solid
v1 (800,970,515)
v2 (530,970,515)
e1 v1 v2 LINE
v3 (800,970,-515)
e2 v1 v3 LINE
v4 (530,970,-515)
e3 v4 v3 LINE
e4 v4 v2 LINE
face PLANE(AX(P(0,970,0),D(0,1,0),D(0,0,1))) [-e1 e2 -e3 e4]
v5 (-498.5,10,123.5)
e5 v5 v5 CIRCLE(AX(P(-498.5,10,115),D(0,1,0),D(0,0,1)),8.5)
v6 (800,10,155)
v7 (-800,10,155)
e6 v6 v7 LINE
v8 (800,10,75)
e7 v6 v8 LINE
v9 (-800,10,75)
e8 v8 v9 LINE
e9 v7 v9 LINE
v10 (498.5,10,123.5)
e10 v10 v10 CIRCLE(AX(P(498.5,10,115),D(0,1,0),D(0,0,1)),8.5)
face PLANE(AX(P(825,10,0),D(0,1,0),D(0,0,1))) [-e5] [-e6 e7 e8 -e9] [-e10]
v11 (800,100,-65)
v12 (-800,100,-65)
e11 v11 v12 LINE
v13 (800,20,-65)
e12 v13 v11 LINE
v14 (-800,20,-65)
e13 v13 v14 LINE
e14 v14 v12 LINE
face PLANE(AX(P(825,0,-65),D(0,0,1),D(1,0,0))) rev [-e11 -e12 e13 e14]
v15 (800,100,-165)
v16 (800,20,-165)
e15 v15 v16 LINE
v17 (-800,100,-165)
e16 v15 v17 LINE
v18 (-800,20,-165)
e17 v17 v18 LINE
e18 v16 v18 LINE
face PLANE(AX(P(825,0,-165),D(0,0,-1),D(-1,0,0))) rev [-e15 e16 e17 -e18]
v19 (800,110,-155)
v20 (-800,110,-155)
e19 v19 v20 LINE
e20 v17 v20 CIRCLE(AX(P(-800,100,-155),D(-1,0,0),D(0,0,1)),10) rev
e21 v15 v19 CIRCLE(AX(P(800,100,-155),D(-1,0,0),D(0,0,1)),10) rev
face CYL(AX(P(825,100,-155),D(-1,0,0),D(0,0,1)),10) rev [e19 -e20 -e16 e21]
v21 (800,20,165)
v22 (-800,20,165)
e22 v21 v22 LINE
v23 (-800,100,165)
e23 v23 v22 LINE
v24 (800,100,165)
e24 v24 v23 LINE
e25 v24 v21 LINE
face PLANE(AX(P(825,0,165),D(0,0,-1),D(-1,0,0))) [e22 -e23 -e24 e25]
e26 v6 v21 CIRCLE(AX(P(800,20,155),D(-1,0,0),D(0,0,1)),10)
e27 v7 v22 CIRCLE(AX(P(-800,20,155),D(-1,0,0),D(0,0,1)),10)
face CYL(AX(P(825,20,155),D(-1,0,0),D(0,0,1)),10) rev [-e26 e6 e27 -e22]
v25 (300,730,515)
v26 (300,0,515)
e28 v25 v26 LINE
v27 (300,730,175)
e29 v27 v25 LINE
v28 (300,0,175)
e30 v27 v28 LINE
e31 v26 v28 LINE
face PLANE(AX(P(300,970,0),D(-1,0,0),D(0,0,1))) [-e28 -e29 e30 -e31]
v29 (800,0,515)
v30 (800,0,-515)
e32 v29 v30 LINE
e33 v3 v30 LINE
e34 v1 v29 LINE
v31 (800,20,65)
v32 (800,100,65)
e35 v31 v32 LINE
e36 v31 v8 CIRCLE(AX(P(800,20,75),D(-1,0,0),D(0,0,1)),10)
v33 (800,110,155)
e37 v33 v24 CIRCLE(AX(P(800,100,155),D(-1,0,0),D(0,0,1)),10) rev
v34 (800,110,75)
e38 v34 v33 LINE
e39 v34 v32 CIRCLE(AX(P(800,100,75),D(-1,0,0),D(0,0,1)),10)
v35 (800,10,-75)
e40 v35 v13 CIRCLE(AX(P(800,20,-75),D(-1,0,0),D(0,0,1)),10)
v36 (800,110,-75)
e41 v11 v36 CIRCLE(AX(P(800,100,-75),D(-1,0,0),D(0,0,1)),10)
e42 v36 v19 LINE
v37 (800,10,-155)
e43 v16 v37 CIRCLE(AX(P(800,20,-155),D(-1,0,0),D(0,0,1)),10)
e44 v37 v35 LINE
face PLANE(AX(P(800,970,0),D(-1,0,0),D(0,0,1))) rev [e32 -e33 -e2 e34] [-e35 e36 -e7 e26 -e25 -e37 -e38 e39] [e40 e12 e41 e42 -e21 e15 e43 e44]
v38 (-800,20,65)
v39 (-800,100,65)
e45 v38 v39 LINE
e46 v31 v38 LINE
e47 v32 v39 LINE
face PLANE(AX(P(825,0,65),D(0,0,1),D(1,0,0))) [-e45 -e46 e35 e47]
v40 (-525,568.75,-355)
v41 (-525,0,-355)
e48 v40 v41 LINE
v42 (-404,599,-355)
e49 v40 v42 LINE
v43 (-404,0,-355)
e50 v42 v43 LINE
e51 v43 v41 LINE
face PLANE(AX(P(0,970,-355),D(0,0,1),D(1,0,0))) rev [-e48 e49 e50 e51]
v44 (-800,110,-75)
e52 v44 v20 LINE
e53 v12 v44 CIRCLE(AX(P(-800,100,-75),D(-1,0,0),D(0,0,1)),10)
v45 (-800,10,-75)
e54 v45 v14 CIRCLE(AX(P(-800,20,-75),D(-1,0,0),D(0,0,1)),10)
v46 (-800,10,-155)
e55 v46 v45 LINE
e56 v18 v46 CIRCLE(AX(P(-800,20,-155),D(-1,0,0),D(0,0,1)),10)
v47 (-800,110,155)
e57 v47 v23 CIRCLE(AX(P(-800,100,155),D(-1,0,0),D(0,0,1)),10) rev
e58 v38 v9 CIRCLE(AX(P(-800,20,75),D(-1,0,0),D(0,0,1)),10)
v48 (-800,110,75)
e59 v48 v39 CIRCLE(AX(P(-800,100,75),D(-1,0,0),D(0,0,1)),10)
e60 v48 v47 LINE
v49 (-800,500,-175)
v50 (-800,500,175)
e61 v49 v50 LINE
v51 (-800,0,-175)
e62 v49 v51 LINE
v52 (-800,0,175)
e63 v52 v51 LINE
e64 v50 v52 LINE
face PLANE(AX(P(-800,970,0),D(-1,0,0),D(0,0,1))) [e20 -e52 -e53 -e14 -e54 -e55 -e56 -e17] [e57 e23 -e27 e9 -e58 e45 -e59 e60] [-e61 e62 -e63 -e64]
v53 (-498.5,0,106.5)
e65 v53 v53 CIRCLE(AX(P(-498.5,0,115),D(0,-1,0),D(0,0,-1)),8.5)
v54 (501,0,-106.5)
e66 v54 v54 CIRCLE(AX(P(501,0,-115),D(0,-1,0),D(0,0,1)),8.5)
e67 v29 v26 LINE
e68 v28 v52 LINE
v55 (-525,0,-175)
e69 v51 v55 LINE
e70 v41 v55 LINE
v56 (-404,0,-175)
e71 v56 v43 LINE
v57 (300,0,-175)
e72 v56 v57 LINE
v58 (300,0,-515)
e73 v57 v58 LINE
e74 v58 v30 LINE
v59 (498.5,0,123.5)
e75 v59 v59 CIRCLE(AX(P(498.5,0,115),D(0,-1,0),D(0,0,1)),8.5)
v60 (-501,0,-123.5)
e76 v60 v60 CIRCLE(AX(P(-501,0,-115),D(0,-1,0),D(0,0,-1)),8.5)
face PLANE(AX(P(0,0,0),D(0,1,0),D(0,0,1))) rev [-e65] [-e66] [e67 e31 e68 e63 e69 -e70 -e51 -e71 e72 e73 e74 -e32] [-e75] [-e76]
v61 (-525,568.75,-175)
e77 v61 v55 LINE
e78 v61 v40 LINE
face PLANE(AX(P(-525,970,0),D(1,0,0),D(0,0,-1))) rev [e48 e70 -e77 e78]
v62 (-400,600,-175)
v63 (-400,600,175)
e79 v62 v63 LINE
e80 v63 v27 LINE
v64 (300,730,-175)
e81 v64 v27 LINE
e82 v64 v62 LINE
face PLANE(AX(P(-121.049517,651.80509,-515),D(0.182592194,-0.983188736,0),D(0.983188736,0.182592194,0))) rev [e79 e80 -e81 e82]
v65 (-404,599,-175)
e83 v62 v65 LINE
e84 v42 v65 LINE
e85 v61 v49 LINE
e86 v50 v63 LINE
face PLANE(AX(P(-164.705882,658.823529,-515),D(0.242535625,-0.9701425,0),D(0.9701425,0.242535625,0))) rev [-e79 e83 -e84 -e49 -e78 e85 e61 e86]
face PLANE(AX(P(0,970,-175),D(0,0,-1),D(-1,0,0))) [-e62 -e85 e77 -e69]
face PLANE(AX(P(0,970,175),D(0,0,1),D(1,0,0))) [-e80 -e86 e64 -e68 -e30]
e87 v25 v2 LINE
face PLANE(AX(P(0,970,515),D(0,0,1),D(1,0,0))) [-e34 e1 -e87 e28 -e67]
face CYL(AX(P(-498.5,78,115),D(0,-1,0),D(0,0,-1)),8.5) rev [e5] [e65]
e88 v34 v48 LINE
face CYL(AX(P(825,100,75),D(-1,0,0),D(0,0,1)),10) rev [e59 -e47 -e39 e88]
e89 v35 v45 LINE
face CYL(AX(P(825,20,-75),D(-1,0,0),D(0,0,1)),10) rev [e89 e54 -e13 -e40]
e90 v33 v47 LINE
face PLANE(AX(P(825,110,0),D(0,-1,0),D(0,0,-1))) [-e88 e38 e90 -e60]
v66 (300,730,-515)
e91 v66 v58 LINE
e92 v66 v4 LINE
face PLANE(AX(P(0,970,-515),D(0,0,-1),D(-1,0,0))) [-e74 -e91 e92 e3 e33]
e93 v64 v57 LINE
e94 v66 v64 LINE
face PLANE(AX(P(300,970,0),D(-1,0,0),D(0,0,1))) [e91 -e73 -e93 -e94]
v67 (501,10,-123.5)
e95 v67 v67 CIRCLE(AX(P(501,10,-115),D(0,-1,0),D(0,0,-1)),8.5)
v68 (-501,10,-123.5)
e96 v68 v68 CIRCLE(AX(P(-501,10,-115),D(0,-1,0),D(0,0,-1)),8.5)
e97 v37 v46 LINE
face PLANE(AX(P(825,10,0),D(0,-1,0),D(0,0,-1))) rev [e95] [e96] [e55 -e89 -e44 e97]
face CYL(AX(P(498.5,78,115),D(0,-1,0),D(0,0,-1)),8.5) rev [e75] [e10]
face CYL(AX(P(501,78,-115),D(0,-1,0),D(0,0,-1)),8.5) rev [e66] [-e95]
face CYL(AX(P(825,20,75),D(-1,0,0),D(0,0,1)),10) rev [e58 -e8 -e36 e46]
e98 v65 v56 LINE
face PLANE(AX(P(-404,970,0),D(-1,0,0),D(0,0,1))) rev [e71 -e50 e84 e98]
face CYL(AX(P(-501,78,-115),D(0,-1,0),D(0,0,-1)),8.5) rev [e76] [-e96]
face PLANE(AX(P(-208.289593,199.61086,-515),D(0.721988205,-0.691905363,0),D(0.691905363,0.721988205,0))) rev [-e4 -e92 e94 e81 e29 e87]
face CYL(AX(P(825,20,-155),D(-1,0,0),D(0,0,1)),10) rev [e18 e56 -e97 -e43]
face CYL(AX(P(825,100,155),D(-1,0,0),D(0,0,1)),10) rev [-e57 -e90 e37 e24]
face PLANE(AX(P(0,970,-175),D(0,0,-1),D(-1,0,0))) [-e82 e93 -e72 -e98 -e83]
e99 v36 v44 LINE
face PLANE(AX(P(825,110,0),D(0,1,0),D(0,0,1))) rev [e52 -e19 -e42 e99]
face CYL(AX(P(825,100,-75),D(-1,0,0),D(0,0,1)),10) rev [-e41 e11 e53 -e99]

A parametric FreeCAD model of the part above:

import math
import FreeCAD as App
import Part
import Sketcher
from FreeCAD import Vector


def add_polygon(sketch, points):
    """Adds a closed chain of lines whose ends are joined by coincident constraints."""
    first, n = sketch.GeometryCount, len(points)
    for a, b in zip(points, points[1:] + points[:1]):
        sketch.addGeometry(Part.LineSegment(App.Vector(*a, 0), App.Vector(*b, 0)), False)
    for i in range(n):
        sketch.addConstraint(Sketcher.Constraint("Coincident", first + i, 2, first + (i + 1) % n, 1))

doc = App.newDocument("Part")
body = doc.addObject("PartDesign::Body", "Body")

# Sketch on XZ plane
sketch1 = body.newObject("Sketcher::SketchObject", "Sketch")
sketch1.AttachmentSupport = (doc.getObject("XZ_Plane"), [""])
sketch1.MapMode = "FlatFace"
add_polygon(sketch1, [(300, 515), (800, 515), (800, -515), (300, -515), (300, -175), (-404, -175), (-404, -355), (-525, -355), (-525, -175), (-800, -175), (-800, 175), (300, 175)])  # lines 0-11
sketch1.addConstraint(Sketcher.Constraint("Horizontal", 0))
sketch1.addConstraint(Sketcher.Constraint("Vertical", 1))
sketch1.addConstraint(Sketcher.Constraint("Horizontal", 2))
sketch1.addConstraint(Sketcher.Constraint("Vertical", 3))
sketch1.addConstraint(Sketcher.Constraint("Horizontal", 4))
sketch1.addConstraint(Sketcher.Constraint("Vertical", 5))
sketch1.addConstraint(Sketcher.Constraint("Horizontal", 6))
sketch1.addConstraint(Sketcher.Constraint("Vertical", 7))
sketch1.addConstraint(Sketcher.Constraint("Horizontal", 8))
sketch1.addConstraint(Sketcher.Constraint("Vertical", 9))
sketch1.addConstraint(Sketcher.Constraint("Horizontal", 10))
sketch1.addConstraint(Sketcher.Constraint("Vertical", 11))
sketch1.addConstraint(Sketcher.Constraint("Symmetric", 3, 2, 10, 2, -1))
sketch1.addConstraint(Sketcher.Constraint("Horizontal", 4, 2, 7, 2))
sketch1.addConstraint(Sketcher.Constraint("Equal", 3, 11))
sketch1.addConstraint(Sketcher.Constraint("DistanceX", 0, 1, 0, 2, 500.0))
sketch1.addConstraint(Sketcher.Constraint("DistanceX", 4, 2, 4, 1, 704.0))
sketch1.addConstraint(Sketcher.Constraint("DistanceX", 6, 2, 6, 1, 121.0))
sketch1.addConstraint(Sketcher.Constraint("DistanceX", 8, 2, 8, 1, 275.0))
sketch1.addConstraint(Sketcher.Constraint("DistanceY", 1, 2, 1, 1, 1030.0))
sketch1.addConstraint(Sketcher.Constraint("DistanceY", 3, 1, 3, 2, 340.0))
sketch1.addConstraint(Sketcher.Constraint("DistanceY", 5, 2, 5, 1, 180.0))
sketch1.addConstraint(Sketcher.Constraint("DistanceX", -1, 1, 0, 2, 800.0))
pad1 = body.newObject("PartDesign::Pad", "Pad")
pad1.Profile = sketch1
pad1.Length = 970
pad1.Reversed = True

# Sketch on XY plane
sketch2 = body.newObject("Sketcher::SketchObject", "Sketch001")
sketch2.AttachmentSupport = (doc.getObject("XY_Plane"), [""])
sketch2.MapMode = "FlatFace"
add_polygon(sketch2, [(530, 970), (-800, 970), (-800, 500), (-400, 600), (300, 730)])  # lines 0-4
sketch2.addConstraint(Sketcher.Constraint("Horizontal", 0))
sketch2.addConstraint(Sketcher.Constraint("Vertical", 1))
sketch2.addConstraint(Sketcher.Constraint("DistanceX", 0, 2, 0, 1, 1330.0))
sketch2.addConstraint(Sketcher.Constraint("DistanceY", 1, 2, 1, 1, 470.0))
sketch2.addConstraint(Sketcher.Constraint("DistanceX", 0, 2, -1, 1, 800.0))
sketch2.addConstraint(Sketcher.Constraint("DistanceY", -1, 1, 0, 2, 970.0))
sketch2.addConstraint(Sketcher.Constraint("DistanceX", 2, 2, -1, 1, 400.0))
sketch2.addConstraint(Sketcher.Constraint("DistanceY", -1, 1, 2, 2, 600.0))
sketch2.addConstraint(Sketcher.Constraint("DistanceX", -1, 1, 3, 2, 300.0))
sketch2.addConstraint(Sketcher.Constraint("DistanceY", -1, 1, 3, 2, 730.0))
pocket1 = body.newObject("PartDesign::Pocket", "Pocket")
pocket1.Profile = sketch2
pocket1.Type = "ThroughAll"
pocket1.Midplane = True

# Sketch on YZ plane
sketch3 = body.newObject("Sketcher::SketchObject", "Sketch002")
sketch3.AttachmentSupport = (doc.getObject("YZ_Plane"), [""])
sketch3.MapMode = "FlatFace"
sketch3.AttachmentOffset = App.Placement(Vector(0, 0, -800), App.Rotation())
sketch3.addGeometry(Part.LineSegment(Vector(100, -165, 0), Vector(20, -165, 0)), False)
sketch3.addGeometry(Part.ArcOfCircle(Part.Circle(Vector(20, -155, 0), Vector(0, 0, 1), 10), math.radians(180), math.radians(270)), False)
sketch3.addGeometry(Part.LineSegment(Vector(10, -155, 0), Vector(10, -75, 0)), False)
sketch3.addGeometry(Part.ArcOfCircle(Part.Circle(Vector(20, -75, 0), Vector(0, 0, 1), 10), math.radians(90), math.radians(180)), False)
sketch3.addGeometry(Part.LineSegment(Vector(20, -65, 0), Vector(100, -65, 0)), False)
sketch3.addGeometry(Part.ArcOfCircle(Part.Circle(Vector(100, -75, 0), Vector(0, 0, 1), 10), math.radians(0), math.radians(90)), False)
sketch3.addGeometry(Part.LineSegment(Vector(110, -75, 0), Vector(110, -155, 0)), False)
sketch3.addGeometry(Part.ArcOfCircle(Part.Circle(Vector(100, -155, 0), Vector(0, 0, 1), 10), math.radians(-90), math.radians(0)), False)
sketch3.addGeometry(Part.LineSegment(Vector(110, 155, 0), Vector(110, 75, 0)), False)
sketch3.addGeometry(Part.ArcOfCircle(Part.Circle(Vector(100, 75, 0), Vector(0, 0, 1), 10), math.radians(-90), math.radians(0)), False)
sketch3.addGeometry(Part.LineSegment(Vector(100, 65, 0), Vector(20, 65, 0)), False)
sketch3.addGeometry(Part.ArcOfCircle(Part.Circle(Vector(20, 75, 0), Vector(0, 0, 1), 10), math.radians(180), math.radians(270)), False)
sketch3.addGeometry(Part.LineSegment(Vector(10, 75, 0), Vector(10, 155, 0)), False)
sketch3.addGeometry(Part.ArcOfCircle(Part.Circle(Vector(20, 155, 0), Vector(0, 0, 1), 10), math.radians(90), math.radians(180)), False)
sketch3.addGeometry(Part.LineSegment(Vector(20, 165, 0), Vector(100, 165, 0)), False)
sketch3.addGeometry(Part.ArcOfCircle(Part.Circle(Vector(100, 155, 0), Vector(0, 0, 1), 10), math.radians(0), math.radians(90)), False)
sketch3.addConstraint(Sketcher.Constraint("Tangent", 0, 2, 1, 2))
sketch3.addConstraint(Sketcher.Constraint("Tangent", 1, 1, 2, 1))
sketch3.addConstraint(Sketcher.Constraint("Tangent", 2, 2, 3, 2))
sketch3.addConstraint(Sketcher.Constraint("Tangent", 3, 1, 4, 1))
sketch3.addConstraint(Sketcher.Constraint("Tangent", 4, 2, 5, 2))
sketch3.addConstraint(Sketcher.Constraint("Tangent", 5, 1, 6, 1))
sketch3.addConstraint(Sketcher.Constraint("Tangent", 6, 2, 7, 2))
sketch3.addConstraint(Sketcher.Constraint("Tangent", 7, 1, 0, 1))
sketch3.addConstraint(Sketcher.Constraint("Tangent", 8, 2, 9, 2))
sketch3.addConstraint(Sketcher.Constraint("Tangent", 9, 1, 10, 1))
sketch3.addConstraint(Sketcher.Constraint("Tangent", 10, 2, 11, 2))
sketch3.addConstraint(Sketcher.Constraint("Tangent", 11, 1, 12, 1))
sketch3.addConstraint(Sketcher.Constraint("Tangent", 12, 2, 13, 2))
sketch3.addConstraint(Sketcher.Constraint("Tangent", 13, 1, 14, 1))
sketch3.addConstraint(Sketcher.Constraint("Tangent", 14, 2, 15, 2))
sketch3.addConstraint(Sketcher.Constraint("Tangent", 15, 1, 8, 1))
sketch3.addConstraint(Sketcher.Constraint("Horizontal", 0))
sketch3.addConstraint(Sketcher.Constraint("Vertical", 2))
sketch3.addConstraint(Sketcher.Constraint("Horizontal", 4))
sketch3.addConstraint(Sketcher.Constraint("Vertical", 6))
sketch3.addConstraint(Sketcher.Constraint("Vertical", 8))
sketch3.addConstraint(Sketcher.Constraint("Horizontal", 10))
sketch3.addConstraint(Sketcher.Constraint("Vertical", 12))
sketch3.addConstraint(Sketcher.Constraint("Horizontal", 14))
sketch3.addConstraint(Sketcher.Constraint("Equal", 1, 3))
sketch3.addConstraint(Sketcher.Constraint("Equal", 3, 5))
sketch3.addConstraint(Sketcher.Constraint("Equal", 5, 7))
sketch3.addConstraint(Sketcher.Constraint("Equal", 7, 9))
sketch3.addConstraint(Sketcher.Constraint("Equal", 9, 11))
sketch3.addConstraint(Sketcher.Constraint("Equal", 11, 13))
sketch3.addConstraint(Sketcher.Constraint("Equal", 13, 15))
sketch3.addConstraint(Sketcher.Constraint("Symmetric", 5, 3, 9, 3, -1))
sketch3.addConstraint(Sketcher.Constraint("Symmetric", 1, 3, 13, 3, -1))
sketch3.addConstraint(Sketcher.Constraint("Equal", 14, 2))
sketch3.addConstraint(Sketcher.Constraint("Radius", 1, 10.0))
sketch3.addConstraint(Sketcher.Constraint("DistanceX", 0, 2, 0, 1, 80.0))
sketch3.addConstraint(Sketcher.Constraint("DistanceX", -1, 1, 1, 3, 20.0))
sketch3.addConstraint(Sketcher.Constraint("DistanceY", 1, 3, -1, 1, 155.0))
pocket2 = body.newObject("PartDesign::Pocket", "Pocket001")
pocket2.Profile = sketch3
pocket2.Length = 1625
pocket2.Reversed = True

# Sketch on XZ plane
sketch4 = body.newObject("Sketcher::SketchObject", "Sketch003")
sketch4.AttachmentSupport = (doc.getObject("XZ_Plane"), [""])
sketch4.MapMode = "FlatFace"
sketch4.addGeometry(Part.Circle(Vector(-498, 115, 0), Vector(0, 0, 1), 8), False)
sketch4.addGeometry(Part.Circle(Vector(-501, -115, 0), Vector(0, 0, 1), 8), False)
sketch4.addGeometry(Part.Circle(Vector(501, -115, 0), Vector(0, 0, 1), 8), False)
sketch4.addGeometry(Part.Circle(Vector(498, 115, 0), Vector(0, 0, 1), 8), False)
sketch4.addConstraint(Sketcher.Constraint("Equal", 0, 1))
sketch4.addConstraint(Sketcher.Constraint("Equal", 1, 2))
sketch4.addConstraint(Sketcher.Constraint("Equal", 2, 3))
sketch4.addConstraint(Sketcher.Constraint("Symmetric", 1, 3, 2, 3, -2))
sketch4.addConstraint(Sketcher.Constraint("Symmetric", 0, 3, 3, 3, -2))
sketch4.addConstraint(Sketcher.Constraint("Diameter", 0, 17.0))
sketch4.addConstraint(Sketcher.Constraint("DistanceY", -1, 1, 0, 3, 115.0))
sketch4.addConstraint(Sketcher.Constraint("DistanceX", 1, 3, -1, 1, 501.0))
sketch4.addConstraint(Sketcher.Constraint("DistanceY", 1, 3, -1, 1, 115.0))
sketch4.addConstraint(Sketcher.Constraint("DistanceX", 0, 3, 3, 3, 997.0))
pocket3 = body.newObject("PartDesign::Pocket", "Pocket002")
pocket3.Profile = sketch4
pocket3.Length = 78

doc.recompute()
